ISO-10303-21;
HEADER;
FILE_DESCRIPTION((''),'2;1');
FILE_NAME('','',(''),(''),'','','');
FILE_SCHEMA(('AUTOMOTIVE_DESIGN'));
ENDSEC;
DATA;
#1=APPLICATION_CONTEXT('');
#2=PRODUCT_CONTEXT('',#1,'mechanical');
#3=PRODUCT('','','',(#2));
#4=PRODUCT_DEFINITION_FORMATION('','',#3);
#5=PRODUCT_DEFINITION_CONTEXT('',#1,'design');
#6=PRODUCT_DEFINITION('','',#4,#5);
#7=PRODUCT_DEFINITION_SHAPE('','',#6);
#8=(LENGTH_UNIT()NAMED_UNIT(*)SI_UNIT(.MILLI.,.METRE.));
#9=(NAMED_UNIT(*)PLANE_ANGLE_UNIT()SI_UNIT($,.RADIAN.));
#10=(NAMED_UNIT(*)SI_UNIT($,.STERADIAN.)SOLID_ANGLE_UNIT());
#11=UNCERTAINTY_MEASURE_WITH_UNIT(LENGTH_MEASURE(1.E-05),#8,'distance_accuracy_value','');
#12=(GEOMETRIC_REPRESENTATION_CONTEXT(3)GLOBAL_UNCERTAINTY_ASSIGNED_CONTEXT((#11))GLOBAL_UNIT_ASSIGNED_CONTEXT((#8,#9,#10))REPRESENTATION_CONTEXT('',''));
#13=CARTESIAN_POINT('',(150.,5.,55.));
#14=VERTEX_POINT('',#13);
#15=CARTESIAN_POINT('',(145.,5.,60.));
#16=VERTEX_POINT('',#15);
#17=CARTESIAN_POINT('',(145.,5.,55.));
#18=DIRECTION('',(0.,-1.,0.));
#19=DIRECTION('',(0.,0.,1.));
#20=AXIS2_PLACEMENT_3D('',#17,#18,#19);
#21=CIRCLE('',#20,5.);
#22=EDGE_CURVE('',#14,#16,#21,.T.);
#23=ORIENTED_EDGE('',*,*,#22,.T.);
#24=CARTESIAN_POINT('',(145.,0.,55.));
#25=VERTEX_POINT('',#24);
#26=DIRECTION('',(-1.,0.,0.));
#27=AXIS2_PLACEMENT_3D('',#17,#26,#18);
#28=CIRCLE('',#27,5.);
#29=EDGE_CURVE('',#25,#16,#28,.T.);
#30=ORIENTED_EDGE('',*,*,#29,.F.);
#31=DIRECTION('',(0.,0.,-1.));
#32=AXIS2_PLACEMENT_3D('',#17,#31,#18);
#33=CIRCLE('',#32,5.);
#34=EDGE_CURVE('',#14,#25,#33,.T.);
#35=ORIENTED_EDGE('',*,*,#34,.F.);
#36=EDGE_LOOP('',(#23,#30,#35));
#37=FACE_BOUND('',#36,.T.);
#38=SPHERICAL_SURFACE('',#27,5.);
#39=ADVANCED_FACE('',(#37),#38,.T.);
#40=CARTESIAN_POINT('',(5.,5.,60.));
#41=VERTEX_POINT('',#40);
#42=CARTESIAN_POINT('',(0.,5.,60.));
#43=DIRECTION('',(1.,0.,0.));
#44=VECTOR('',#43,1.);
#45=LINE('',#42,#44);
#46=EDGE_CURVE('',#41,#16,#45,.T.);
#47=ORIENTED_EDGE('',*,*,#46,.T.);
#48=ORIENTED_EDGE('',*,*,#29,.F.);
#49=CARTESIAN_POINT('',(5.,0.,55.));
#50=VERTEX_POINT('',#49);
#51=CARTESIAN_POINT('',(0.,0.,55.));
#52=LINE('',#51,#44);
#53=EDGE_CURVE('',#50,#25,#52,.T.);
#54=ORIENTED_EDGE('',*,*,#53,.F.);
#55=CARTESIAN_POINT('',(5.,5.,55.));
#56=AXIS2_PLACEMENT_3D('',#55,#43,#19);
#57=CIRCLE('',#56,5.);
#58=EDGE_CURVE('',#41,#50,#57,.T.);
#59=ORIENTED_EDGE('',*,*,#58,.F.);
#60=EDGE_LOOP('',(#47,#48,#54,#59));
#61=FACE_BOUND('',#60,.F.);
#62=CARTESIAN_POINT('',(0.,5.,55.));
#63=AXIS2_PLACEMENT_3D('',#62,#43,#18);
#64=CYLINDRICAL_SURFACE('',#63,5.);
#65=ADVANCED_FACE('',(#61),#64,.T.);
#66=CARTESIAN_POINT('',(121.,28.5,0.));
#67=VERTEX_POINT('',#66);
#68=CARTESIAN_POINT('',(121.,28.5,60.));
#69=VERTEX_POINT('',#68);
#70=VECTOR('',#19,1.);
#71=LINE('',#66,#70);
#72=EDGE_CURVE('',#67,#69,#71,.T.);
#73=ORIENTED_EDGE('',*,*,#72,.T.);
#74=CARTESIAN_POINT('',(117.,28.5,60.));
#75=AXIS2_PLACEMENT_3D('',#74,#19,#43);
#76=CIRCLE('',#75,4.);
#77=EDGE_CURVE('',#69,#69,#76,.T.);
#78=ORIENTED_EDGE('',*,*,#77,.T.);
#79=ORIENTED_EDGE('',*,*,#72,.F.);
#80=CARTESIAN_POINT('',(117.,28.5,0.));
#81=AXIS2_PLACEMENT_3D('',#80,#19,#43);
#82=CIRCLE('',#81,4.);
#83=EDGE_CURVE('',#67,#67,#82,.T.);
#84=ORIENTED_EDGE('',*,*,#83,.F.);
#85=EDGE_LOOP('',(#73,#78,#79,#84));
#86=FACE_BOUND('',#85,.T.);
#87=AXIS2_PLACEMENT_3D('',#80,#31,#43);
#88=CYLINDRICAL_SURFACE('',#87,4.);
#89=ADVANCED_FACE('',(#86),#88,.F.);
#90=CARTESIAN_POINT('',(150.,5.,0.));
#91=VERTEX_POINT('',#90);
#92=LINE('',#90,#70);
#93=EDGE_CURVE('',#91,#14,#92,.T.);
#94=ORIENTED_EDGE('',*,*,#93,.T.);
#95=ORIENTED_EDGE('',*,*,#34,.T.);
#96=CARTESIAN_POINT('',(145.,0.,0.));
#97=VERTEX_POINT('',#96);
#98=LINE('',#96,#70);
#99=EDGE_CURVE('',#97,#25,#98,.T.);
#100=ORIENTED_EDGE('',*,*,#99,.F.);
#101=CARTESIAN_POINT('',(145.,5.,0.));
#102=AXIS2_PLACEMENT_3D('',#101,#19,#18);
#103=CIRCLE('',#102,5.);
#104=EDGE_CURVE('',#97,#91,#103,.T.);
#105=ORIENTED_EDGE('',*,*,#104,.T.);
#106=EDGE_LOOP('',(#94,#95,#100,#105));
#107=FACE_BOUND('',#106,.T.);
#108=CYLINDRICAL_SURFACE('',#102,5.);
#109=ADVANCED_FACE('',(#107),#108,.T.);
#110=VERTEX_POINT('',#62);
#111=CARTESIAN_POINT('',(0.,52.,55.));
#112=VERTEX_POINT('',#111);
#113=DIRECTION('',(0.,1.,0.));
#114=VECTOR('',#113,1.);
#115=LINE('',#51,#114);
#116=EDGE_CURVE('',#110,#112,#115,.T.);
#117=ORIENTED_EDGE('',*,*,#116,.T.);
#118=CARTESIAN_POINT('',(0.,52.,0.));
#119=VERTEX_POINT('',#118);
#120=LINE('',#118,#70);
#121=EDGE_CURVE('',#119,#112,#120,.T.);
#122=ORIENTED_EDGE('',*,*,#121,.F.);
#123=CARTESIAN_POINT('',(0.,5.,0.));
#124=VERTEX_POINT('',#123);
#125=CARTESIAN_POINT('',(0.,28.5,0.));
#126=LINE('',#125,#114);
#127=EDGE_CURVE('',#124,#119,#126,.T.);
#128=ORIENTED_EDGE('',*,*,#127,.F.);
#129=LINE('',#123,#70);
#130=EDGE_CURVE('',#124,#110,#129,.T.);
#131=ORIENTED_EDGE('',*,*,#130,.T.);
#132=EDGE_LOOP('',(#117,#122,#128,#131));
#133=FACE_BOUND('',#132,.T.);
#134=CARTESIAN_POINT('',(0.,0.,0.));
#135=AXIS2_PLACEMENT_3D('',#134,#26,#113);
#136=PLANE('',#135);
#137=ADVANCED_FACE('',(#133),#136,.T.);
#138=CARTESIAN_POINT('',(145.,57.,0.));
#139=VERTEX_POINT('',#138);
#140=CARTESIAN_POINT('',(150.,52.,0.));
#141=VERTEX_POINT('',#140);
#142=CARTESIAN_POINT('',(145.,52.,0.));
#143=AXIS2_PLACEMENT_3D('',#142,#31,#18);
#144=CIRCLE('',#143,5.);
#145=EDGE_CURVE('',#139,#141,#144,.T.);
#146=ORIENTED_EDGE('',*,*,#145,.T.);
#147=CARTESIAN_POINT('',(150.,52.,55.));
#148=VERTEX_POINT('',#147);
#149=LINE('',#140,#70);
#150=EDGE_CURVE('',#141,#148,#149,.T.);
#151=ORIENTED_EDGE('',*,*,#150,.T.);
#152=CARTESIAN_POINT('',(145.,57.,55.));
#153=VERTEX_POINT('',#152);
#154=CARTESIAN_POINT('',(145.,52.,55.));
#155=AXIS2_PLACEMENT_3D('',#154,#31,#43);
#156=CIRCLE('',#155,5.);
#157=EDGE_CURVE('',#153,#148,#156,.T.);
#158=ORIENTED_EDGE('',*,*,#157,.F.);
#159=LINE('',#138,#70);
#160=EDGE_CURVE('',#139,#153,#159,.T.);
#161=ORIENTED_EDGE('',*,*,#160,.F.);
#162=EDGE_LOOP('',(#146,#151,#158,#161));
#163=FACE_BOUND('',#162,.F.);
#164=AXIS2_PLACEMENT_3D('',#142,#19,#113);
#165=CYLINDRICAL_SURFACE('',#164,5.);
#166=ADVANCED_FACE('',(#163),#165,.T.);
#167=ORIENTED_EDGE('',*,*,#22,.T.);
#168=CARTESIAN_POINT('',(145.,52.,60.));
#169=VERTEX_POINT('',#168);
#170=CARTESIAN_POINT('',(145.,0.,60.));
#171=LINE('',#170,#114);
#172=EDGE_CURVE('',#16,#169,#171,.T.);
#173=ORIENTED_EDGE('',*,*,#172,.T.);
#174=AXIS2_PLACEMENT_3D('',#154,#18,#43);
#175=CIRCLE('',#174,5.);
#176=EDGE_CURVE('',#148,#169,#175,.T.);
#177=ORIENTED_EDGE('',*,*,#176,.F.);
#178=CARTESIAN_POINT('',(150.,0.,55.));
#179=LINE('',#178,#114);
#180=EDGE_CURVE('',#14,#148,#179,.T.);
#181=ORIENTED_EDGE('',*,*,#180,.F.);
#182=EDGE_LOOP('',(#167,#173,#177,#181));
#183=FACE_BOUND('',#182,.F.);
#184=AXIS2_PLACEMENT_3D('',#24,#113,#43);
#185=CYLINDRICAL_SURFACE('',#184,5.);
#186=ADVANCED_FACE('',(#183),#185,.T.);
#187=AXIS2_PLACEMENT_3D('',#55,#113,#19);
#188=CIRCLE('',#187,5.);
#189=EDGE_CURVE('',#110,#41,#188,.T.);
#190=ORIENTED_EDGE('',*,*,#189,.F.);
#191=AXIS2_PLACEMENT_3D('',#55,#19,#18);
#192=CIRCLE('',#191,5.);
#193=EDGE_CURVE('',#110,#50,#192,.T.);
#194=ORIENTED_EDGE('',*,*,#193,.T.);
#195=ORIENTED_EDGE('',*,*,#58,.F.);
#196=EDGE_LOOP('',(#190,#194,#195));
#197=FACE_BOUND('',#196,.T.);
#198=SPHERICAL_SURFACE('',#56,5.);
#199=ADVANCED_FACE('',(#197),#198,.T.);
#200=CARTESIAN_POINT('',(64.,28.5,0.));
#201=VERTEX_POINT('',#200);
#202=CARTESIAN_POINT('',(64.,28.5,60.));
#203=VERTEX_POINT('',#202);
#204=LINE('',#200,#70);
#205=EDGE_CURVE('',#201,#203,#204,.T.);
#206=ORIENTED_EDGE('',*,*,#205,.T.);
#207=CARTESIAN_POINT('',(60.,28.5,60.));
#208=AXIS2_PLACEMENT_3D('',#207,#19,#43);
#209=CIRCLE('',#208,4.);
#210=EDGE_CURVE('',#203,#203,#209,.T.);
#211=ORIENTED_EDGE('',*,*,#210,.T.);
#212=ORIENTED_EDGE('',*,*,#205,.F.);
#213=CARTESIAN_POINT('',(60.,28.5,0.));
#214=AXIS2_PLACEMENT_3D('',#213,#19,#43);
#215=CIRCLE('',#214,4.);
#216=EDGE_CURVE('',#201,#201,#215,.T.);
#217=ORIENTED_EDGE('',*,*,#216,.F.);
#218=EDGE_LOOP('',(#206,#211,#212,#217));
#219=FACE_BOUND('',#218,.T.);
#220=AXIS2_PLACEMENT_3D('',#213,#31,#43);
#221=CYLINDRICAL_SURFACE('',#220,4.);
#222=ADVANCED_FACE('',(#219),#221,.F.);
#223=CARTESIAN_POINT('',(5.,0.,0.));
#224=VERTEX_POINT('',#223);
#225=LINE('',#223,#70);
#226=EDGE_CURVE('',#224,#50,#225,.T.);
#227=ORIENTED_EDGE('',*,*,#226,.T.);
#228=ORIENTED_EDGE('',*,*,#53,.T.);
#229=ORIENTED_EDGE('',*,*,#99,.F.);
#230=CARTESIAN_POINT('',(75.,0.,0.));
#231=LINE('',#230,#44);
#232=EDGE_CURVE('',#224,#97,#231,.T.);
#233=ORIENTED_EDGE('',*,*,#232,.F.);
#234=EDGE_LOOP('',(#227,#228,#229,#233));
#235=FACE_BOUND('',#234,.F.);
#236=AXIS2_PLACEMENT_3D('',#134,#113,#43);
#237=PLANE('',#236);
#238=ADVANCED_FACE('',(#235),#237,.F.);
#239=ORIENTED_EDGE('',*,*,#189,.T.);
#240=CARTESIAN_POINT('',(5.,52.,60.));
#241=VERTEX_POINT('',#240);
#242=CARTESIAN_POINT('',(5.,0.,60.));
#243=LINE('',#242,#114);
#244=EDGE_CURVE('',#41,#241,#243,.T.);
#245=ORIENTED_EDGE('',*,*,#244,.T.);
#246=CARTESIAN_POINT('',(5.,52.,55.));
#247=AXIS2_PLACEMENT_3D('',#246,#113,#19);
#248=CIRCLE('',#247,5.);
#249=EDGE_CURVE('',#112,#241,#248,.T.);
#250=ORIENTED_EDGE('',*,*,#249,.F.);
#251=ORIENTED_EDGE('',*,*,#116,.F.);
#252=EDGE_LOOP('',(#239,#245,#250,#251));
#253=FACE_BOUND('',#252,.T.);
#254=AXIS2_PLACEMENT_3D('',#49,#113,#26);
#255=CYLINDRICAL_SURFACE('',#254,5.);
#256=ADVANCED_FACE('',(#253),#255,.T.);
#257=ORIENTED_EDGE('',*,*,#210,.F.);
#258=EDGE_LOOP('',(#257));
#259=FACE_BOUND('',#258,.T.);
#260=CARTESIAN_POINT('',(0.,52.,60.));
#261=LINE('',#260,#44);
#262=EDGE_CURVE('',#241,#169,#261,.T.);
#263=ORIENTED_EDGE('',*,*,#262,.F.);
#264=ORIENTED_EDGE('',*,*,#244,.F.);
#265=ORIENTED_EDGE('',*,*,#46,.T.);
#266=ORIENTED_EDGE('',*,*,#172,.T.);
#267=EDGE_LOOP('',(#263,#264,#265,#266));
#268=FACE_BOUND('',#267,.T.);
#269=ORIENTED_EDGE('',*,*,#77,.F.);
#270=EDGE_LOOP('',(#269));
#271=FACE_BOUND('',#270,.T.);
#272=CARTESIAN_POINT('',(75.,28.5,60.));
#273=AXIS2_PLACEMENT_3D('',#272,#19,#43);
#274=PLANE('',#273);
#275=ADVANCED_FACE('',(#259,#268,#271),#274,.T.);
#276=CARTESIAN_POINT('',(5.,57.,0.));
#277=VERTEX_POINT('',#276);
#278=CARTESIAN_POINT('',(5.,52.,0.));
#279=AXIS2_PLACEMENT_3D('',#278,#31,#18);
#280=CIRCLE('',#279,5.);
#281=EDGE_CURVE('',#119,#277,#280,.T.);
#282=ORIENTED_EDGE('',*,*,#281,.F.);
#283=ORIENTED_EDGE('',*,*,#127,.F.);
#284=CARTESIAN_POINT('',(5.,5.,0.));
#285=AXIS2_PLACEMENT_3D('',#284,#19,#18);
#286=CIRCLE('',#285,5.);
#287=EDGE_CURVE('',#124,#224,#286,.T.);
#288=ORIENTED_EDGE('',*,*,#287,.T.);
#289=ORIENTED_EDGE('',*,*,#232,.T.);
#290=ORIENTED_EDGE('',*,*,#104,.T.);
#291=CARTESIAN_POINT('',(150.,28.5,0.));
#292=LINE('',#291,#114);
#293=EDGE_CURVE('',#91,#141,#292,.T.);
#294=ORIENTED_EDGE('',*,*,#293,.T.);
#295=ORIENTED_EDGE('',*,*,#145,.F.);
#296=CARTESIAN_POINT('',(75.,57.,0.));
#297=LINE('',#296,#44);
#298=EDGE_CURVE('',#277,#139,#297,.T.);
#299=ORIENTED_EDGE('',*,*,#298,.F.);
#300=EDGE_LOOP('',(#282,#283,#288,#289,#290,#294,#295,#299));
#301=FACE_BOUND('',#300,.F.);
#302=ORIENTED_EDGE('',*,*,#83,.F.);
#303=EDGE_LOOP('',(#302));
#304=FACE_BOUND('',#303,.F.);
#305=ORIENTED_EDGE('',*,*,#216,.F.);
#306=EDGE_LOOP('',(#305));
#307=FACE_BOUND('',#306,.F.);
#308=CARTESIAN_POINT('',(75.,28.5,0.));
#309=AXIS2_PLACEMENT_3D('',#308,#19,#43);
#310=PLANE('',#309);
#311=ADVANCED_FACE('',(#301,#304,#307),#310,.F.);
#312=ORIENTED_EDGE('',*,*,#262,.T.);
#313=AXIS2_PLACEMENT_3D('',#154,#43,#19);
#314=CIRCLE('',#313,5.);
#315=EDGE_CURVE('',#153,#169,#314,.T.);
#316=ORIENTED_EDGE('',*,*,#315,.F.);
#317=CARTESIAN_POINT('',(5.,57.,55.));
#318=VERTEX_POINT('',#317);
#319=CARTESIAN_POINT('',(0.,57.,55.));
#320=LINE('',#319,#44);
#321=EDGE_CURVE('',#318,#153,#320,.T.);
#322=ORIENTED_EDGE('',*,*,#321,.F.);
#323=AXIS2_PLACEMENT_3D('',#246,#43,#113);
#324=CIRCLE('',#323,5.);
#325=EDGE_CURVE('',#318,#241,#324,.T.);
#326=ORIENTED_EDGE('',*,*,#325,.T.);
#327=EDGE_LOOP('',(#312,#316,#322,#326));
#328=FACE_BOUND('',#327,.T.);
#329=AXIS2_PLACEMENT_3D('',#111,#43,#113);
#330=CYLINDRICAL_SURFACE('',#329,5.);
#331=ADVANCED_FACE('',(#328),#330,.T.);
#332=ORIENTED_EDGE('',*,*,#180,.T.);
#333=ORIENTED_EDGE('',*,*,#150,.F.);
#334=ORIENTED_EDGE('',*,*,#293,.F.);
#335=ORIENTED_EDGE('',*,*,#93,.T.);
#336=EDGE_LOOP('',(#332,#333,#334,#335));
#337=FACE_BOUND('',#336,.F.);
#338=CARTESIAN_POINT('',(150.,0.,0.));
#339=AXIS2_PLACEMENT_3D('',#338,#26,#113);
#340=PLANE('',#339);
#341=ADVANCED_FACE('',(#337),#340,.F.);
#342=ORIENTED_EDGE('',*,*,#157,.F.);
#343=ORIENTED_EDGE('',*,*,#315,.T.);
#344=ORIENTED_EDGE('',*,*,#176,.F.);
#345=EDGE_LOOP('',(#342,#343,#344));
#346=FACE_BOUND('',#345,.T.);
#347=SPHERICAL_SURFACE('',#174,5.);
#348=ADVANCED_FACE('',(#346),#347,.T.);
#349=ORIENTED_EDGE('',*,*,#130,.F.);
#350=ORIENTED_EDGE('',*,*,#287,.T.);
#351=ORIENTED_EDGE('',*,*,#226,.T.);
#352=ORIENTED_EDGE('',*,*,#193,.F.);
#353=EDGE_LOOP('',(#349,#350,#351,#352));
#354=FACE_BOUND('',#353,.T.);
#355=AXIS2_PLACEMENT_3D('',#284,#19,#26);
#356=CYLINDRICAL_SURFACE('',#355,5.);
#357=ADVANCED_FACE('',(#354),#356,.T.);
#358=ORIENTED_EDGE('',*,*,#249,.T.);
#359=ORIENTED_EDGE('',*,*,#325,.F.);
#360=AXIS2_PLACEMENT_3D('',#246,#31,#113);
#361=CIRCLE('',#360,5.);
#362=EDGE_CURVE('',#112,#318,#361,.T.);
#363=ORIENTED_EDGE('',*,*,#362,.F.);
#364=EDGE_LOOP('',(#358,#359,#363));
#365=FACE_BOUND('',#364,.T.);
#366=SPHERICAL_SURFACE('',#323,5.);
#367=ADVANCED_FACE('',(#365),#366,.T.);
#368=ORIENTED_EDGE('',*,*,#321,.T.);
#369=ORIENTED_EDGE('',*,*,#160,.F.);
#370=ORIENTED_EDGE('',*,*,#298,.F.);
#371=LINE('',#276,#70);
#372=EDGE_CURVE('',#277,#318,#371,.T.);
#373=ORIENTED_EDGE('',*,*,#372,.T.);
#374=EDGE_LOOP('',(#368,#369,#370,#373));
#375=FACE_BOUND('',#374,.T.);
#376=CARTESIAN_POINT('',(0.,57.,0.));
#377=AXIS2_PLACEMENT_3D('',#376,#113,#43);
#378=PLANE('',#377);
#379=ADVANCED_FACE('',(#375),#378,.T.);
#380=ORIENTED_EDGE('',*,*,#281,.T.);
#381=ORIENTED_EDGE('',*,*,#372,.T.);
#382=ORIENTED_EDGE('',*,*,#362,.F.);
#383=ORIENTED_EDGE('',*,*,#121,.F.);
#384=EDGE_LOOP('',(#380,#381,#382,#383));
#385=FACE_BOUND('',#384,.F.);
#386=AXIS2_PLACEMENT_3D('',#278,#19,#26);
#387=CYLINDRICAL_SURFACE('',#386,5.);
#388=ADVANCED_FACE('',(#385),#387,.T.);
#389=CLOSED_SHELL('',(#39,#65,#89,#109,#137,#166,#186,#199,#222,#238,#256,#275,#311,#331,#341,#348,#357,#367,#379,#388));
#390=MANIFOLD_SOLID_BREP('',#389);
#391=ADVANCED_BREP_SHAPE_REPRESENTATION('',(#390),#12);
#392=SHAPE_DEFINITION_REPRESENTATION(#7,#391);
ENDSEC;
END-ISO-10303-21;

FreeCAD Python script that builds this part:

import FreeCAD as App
import Part
import Sketcher

V = App.Vector


def edges_at(feature, points):
    """Names of the edges that pass closest to the given points."""
    edges = feature.Shape.Edges
    near = lambda p: min(range(len(edges)), key=lambda i: edges[i].distToShape(Part.Vertex(*p))[0])
    return sorted({f"Edge{near(p) + 1}" for p in points})


def add_polygon(sketch, points):
    """Adds a closed chain of lines whose ends are joined by coincident constraints."""
    first, n = sketch.GeometryCount, len(points)
    for a, b in zip(points, points[1:] + points[:1]):
        sketch.addGeometry(Part.LineSegment(App.Vector(*a, 0), App.Vector(*b, 0)), False)
    for i in range(n):
        sketch.addConstraint(Sketcher.Constraint("Coincident", first + i, 2, first + (i + 1) % n, 1))

doc = App.newDocument("Part")
body = doc.addObject("PartDesign::Body", "Body")

# Sketch on XY plane
sketch1 = body.newObject("Sketcher::SketchObject", "Sketch")
sketch1.AttachmentSupport = (doc.getObject("XY_Plane"), [""])
sketch1.MapMode = "FlatFace"
add_polygon(sketch1, [(0, 57), (0, 0), (150, 0), (150, 57)])  # lines 0-3
sketch1.addGeometry(Part.Circle(V(60, 28.5, 0), V(0, 0, 1), 4), False)  # 4
sketch1.addGeometry(Part.Circle(V(117, 28.5, 0), V(0, 0, 1), 4), False)  # 5
sketch1.addConstraint([
    Sketcher.Constraint("Vertical", 0),
    Sketcher.Constraint("Horizontal", 1),
    Sketcher.Constraint("Vertical", 2),
    Sketcher.Constraint("Horizontal", 3),
    Sketcher.Constraint("Coincident", 0, 2, -1, 1),
    Sketcher.Constraint("Equal", 4, 5),
    Sketcher.Constraint("Horizontal", 4, 3, 5, 3),
    Sketcher.Constraint("Diameter", 4, 8.0),
    Sketcher.Constraint("DistanceX", 1, 1, 1, 2, 150.0),
    Sketcher.Constraint("DistanceY", 0, 2, 0, 1, 57.0),
    Sketcher.Constraint("DistanceX", -1, 1, 4, 3, 60.0),
    Sketcher.Constraint("DistanceX", -1, 1, 5, 3, 117.0),
    Sketcher.Constraint("DistanceY", -1, 1, 4, 3, 28.5),
])
pad1 = body.newObject("PartDesign::Pad", "Pad")
pad1.Profile = sketch1
pad1.Length = 60
doc.recompute()

fillet = body.newObject("PartDesign::Fillet", "Fillet")
fillet.Base = (pad1, edges_at(pad1, [
    (75, 0, 60),
    (150, 0, 30),
    (150, 28.5, 60),
    (150, 57, 30),
    (75, 57, 60),
    (0, 57, 30),
    (0, 28.5, 60),
    (0, 0, 30),
]))
fillet.Radius = 5

doc.recompute()
